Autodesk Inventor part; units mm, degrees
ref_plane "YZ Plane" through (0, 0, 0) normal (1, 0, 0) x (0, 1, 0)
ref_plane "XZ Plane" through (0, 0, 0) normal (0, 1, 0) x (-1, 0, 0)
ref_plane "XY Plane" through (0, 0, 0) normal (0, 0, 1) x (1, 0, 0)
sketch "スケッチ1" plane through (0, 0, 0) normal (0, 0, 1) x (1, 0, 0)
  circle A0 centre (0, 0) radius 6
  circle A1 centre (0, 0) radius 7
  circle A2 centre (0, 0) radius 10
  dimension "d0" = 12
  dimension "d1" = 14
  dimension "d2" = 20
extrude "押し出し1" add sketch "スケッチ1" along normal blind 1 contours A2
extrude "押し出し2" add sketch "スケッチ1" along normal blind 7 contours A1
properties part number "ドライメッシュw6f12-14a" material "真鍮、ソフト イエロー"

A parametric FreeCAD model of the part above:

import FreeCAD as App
import Part
import Sketcher

V = App.Vector
Q = App.Units.Quantity

doc = App.newDocument("Part")
body = doc.addObject("PartDesign::Body", "Body")

sketch1 = doc.addObject("Sketcher::SketchObject", "Sketch")
body.addObject(sketch1)
sketch1.AttachmentSupport = (doc.XY_Plane, [""])
sketch1.MapMode = "FlatFace"
sketch1.addGeometry([
    Part.Circle(V(0, 0, 0), V(0, 0, 1), 10),
    Part.Circle(V(0, 0, 0), V(0, 0, 1), 7),
], False)
sketch1.addConstraint([
    Sketcher.Constraint("Coincident", 0, 3, -1, 1),
    Sketcher.Constraint("Coincident", 1, 3, -1, 1),
    Sketcher.Constraint("Diameter", 0, Q("20 mm")),
    Sketcher.Constraint("Diameter", 1, Q("14 mm")),
])
pad1 = doc.addObject("PartDesign::Pad", "Pad")
body.addObject(pad1)
pad1.Profile = sketch1
pad1.Length = 1

sketch2 = doc.addObject("Sketcher::SketchObject", "Sketch001")
body.addObject(sketch2)
sketch2.AttachmentSupport = (doc.XY_Plane, [""])
sketch2.MapMode = "FlatFace"
sketch2.addGeometry([
    Part.Circle(V(0, 0, 0), V(0, 0, 1), 7),
    Part.Circle(V(0, 0, 0), V(0, 0, 1), 6),
], False)
sketch2.addConstraint([
    Sketcher.Constraint("Coincident", 0, 3, -1, 1),
    Sketcher.Constraint("Coincident", 1, 3, -1, 1),
    Sketcher.Constraint("Diameter", 0, Q("14 mm")),
    Sketcher.Constraint("Diameter", 1, Q("12 mm")),
])
pad2 = doc.addObject("PartDesign::Pad", "Pad001")
body.addObject(pad2)
pad2.Profile = sketch2
pad2.Length = 7

doc.recompute()
